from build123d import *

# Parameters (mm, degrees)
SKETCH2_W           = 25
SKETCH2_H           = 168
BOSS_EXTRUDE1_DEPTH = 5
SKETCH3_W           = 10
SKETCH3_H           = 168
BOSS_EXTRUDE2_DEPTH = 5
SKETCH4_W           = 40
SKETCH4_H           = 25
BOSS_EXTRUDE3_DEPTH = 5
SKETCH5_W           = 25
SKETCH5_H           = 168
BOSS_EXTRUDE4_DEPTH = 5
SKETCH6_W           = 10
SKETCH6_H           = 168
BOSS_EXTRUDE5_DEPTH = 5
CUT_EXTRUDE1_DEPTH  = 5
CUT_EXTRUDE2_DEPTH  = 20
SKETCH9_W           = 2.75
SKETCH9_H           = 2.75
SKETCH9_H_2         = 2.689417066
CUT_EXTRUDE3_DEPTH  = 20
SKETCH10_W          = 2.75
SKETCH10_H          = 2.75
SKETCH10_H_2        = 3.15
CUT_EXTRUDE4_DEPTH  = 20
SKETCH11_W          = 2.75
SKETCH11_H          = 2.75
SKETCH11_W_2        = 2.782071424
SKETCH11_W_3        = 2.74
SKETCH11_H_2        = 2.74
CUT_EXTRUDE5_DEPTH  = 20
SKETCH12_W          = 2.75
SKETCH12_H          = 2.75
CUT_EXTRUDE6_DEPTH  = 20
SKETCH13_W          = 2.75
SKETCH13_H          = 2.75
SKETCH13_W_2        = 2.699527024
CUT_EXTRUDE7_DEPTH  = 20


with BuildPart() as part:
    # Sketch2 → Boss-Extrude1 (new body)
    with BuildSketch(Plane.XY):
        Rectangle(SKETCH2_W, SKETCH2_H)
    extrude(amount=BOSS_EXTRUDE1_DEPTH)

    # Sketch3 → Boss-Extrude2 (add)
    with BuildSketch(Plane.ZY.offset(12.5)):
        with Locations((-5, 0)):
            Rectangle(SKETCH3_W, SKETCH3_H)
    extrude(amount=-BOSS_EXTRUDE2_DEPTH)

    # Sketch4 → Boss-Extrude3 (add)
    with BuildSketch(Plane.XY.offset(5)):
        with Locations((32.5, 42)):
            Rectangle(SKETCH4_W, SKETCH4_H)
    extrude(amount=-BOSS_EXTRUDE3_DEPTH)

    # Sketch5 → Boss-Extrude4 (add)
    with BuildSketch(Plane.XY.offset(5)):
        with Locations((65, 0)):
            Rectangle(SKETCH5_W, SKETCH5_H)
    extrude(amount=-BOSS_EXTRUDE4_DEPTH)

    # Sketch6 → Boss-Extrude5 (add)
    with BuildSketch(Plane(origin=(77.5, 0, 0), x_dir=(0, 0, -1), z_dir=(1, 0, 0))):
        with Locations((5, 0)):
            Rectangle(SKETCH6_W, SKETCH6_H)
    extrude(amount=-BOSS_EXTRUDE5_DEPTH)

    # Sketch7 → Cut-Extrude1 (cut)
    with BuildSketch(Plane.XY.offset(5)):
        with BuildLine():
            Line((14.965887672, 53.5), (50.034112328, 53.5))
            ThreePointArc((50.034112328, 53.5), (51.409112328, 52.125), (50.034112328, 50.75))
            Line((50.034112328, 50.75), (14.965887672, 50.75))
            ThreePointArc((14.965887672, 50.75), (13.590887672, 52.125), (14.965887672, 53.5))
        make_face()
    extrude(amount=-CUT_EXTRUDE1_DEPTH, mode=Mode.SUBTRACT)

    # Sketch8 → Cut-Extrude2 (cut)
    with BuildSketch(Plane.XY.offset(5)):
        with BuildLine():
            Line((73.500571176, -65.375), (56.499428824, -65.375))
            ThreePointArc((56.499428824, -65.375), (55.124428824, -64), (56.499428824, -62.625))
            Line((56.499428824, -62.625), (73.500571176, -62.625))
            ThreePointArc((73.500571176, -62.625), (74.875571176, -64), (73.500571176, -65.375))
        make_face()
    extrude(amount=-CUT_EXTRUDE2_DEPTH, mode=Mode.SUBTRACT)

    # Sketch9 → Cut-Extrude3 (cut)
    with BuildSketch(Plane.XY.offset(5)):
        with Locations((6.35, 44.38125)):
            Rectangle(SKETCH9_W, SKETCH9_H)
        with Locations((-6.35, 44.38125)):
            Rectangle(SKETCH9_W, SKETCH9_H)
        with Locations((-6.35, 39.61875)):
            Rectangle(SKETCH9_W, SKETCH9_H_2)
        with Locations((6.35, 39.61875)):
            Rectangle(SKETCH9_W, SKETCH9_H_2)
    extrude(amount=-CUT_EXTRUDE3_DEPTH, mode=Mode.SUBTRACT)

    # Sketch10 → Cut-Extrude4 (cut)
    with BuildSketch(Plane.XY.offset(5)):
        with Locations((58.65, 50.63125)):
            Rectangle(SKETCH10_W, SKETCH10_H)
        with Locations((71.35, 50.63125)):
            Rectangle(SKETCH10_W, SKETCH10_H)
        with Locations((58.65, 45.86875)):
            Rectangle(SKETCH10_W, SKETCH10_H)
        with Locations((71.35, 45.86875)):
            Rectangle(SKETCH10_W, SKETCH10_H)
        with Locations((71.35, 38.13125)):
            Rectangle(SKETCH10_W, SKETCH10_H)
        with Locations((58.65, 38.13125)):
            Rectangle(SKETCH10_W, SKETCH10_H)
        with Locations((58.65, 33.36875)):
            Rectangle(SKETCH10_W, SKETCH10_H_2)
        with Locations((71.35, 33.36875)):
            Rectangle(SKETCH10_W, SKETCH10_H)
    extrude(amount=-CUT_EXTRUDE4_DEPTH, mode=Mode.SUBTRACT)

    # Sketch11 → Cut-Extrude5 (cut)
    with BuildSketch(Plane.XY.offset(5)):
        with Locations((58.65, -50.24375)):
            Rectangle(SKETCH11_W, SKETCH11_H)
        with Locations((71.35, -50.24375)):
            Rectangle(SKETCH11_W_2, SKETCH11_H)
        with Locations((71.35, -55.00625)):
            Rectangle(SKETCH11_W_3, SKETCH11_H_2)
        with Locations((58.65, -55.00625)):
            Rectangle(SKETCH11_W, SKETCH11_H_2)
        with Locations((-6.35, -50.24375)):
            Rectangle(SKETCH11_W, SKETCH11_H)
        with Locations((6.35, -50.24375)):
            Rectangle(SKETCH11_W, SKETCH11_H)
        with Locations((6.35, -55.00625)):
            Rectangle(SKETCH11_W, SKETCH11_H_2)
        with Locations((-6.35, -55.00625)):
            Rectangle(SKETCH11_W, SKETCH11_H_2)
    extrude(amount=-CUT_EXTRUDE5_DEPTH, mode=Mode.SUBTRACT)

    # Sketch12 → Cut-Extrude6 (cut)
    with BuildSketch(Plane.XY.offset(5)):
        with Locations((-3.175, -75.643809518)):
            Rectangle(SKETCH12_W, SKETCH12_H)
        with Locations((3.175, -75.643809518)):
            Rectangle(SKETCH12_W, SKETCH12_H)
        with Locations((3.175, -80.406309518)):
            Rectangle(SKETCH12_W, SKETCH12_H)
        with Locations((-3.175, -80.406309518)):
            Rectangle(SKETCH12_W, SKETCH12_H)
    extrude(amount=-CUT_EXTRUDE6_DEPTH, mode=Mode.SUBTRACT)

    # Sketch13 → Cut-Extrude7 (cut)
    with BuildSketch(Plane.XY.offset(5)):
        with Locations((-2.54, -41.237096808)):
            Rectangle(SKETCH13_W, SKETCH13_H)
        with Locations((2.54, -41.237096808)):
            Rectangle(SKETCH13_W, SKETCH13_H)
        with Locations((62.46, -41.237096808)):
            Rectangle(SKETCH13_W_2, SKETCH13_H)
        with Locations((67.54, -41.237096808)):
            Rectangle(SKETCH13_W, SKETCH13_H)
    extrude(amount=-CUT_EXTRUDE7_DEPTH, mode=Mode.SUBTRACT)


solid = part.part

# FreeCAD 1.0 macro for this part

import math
import FreeCAD as App
import Part
import Sketcher
Q = App.Units.Quantity

doc = App.newDocument("Part")
body = doc.addObject("PartDesign::Body", "Body")

sketch1 = body.newObject("Sketcher::SketchObject", "Sketch")
sketch1.AttachmentSupport = (doc.getObject("XY_Plane"), [""])
sketch1.MapMode = "FlatFace"
sketch1.addGeometry(Part.LineSegment(App.Vector(-12.5, 84, 0), App.Vector(-12.5, -84, 0)), False)
sketch1.addGeometry(Part.LineSegment(App.Vector(-12.5, -84, 0), App.Vector(12.5, -84, 0)), False)
sketch1.addGeometry(Part.LineSegment(App.Vector(12.5, -84, 0), App.Vector(12.5, 84, 0)), False)
sketch1.addGeometry(Part.LineSegment(App.Vector(12.5, 84, 0), App.Vector(-12.5, 84, 0)), False)
sketch1.addConstraint(Sketcher.Constraint("Coincident", 0, 2, 1, 1))
sketch1.addConstraint(Sketcher.Constraint("Coincident", 1, 2, 2, 1))
sketch1.addConstraint(Sketcher.Constraint("Coincident", 2, 2, 3, 1))
sketch1.addConstraint(Sketcher.Constraint("Coincident", 3, 2, 0, 1))
sketch1.addConstraint(Sketcher.Constraint("Vertical", 0))
sketch1.addConstraint(Sketcher.Constraint("Horizontal", 1))
sketch1.addConstraint(Sketcher.Constraint("Vertical", 2))
sketch1.addConstraint(Sketcher.Constraint("Horizontal", 3))
sketch1.addConstraint(Sketcher.Constraint("Symmetric", 0, 2, 2, 2, -1, 1))
sketch1.addConstraint(Sketcher.Constraint("DistanceX", 1, 1, 1, 2, Q("25 mm")))
sketch1.addConstraint(Sketcher.Constraint("DistanceY", 0, 2, 0, 1, Q("168 mm")))
pad1 = body.newObject("PartDesign::Pad", "Pad")
pad1.Profile = sketch1
pad1.Length = 5

sketch2 = body.newObject("Sketcher::SketchObject", "Sketch001")
sketch2.AttachmentSupport = (doc.getObject("YZ_Plane"), [""])
sketch2.MapMode = "FlatFace"
sketch2.AttachmentOffset = App.Placement(App.Vector(0, 0, -12.5), App.Rotation())
sketch2.addGeometry(Part.LineSegment(App.Vector(84, -10, 0), App.Vector(-84, -10, 0)), False)
sketch2.addGeometry(Part.LineSegment(App.Vector(-84, -10, 0), App.Vector(-84, 0, 0)), False)
sketch2.addGeometry(Part.LineSegment(App.Vector(-84, 0, 0), App.Vector(84, 0, 0)), False)
sketch2.addGeometry(Part.LineSegment(App.Vector(84, 0, 0), App.Vector(84, -10, 0)), False)
sketch2.addConstraint(Sketcher.Constraint("Coincident", 0, 2, 1, 1))
sketch2.addConstraint(Sketcher.Constraint("Coincident", 1, 2, 2, 1))
sketch2.addConstraint(Sketcher.Constraint("Coincident", 2, 2, 3, 1))
sketch2.addConstraint(Sketcher.Constraint("Coincident", 3, 2, 0, 1))
sketch2.addConstraint(Sketcher.Constraint("Horizontal", 0))
sketch2.addConstraint(Sketcher.Constraint("Vertical", 1))
sketch2.addConstraint(Sketcher.Constraint("Horizontal", 2))
sketch2.addConstraint(Sketcher.Constraint("Vertical", 3))
sketch2.addConstraint(Sketcher.Constraint("Symmetric", 1, 2, 2, 2, -1, 1))
sketch2.addConstraint(Sketcher.Constraint("DistanceX", 0, 2, 0, 1, Q("168 mm")))
sketch2.addConstraint(Sketcher.Constraint("DistanceY", 1, 1, 1, 2, Q("10 mm")))
pad2 = body.newObject("PartDesign::Pad", "Pad001")
pad2.Profile = sketch2
pad2.Length = 5

sketch3 = body.newObject("Sketcher::SketchObject", "Sketch002")
sketch3.AttachmentSupport = (doc.getObject("XY_Plane"), [""])
sketch3.MapMode = "FlatFace"
sketch3.AttachmentOffset = App.Placement(App.Vector(0, 0, 5), App.Rotation())
sketch3.addGeometry(Part.LineSegment(App.Vector(12.5, 54.5, 0), App.Vector(12.5, 29.5, 0)), False)
sketch3.addGeometry(Part.LineSegment(App.Vector(12.5, 29.5, 0), App.Vector(52.5, 29.5, 0)), False)
sketch3.addGeometry(Part.LineSegment(App.Vector(52.5, 29.5, 0), App.Vector(52.5, 54.5, 0)), False)
sketch3.addGeometry(Part.LineSegment(App.Vector(52.5, 54.5, 0), App.Vector(12.5, 54.5, 0)), False)
sketch3.addConstraint(Sketcher.Constraint("Coincident", 0, 2, 1, 1))
sketch3.addConstraint(Sketcher.Constraint("Coincident", 1, 2, 2, 1))
sketch3.addConstraint(Sketcher.Constraint("Coincident", 2, 2, 3, 1))
sketch3.addConstraint(Sketcher.Constraint("Coincident", 3, 2, 0, 1))
sketch3.addConstraint(Sketcher.Constraint("Vertical", 0))
sketch3.addConstraint(Sketcher.Constraint("Horizontal", 1))
sketch3.addConstraint(Sketcher.Constraint("Vertical", 2))
sketch3.addConstraint(Sketcher.Constraint("Horizontal", 3))
sketch3.addConstraint(Sketcher.Constraint("DistanceX", 1, 1, 1, 2, Q("40 mm")))
sketch3.addConstraint(Sketcher.Constraint("DistanceY", 0, 2, 0, 1, Q("25 mm")))
sketch3.addConstraint(Sketcher.Constraint("DistanceX", -1, 1, 0, 2, Q("12.5 mm")))
sketch3.addConstraint(Sketcher.Constraint("DistanceY", -1, 1, 0, 2, Q("29.5 mm")))
pad3 = body.newObject("PartDesign::Pad", "Pad002")
pad3.Profile = sketch3
pad3.Length = 5
pad3.Reversed = True

sketch4 = body.newObject("Sketcher::SketchObject", "Sketch003")
sketch4.AttachmentSupport = (doc.getObject("XY_Plane"), [""])
sketch4.MapMode = "FlatFace"
sketch4.AttachmentOffset = App.Placement(App.Vector(0, 0, 5), App.Rotation())
sketch4.addGeometry(Part.LineSegment(App.Vector(52.5, 84, 0), App.Vector(52.5, -84, 0)), False)
sketch4.addGeometry(Part.LineSegment(App.Vector(52.5, -84, 0), App.Vector(77.5, -84, 0)), False)
sketch4.addGeometry(Part.LineSegment(App.Vector(77.5, -84, 0), App.Vector(77.5, 84, 0)), False)
sketch4.addGeometry(Part.LineSegment(App.Vector(77.5, 84, 0), App.Vector(52.5, 84, 0)), False)
sketch4.addConstraint(Sketcher.Constraint("Coincident", 0, 2, 1, 1))
sketch4.addConstraint(Sketcher.Constraint("Coincident", 1, 2, 2, 1))
sketch4.addConstraint(Sketcher.Constraint("Coincident", 2, 2, 3, 1))
sketch4.addConstraint(Sketcher.Constraint("Coincident", 3, 2, 0, 1))
sketch4.addConstraint(Sketcher.Constraint("Vertical", 0))
sketch4.addConstraint(Sketcher.Constraint("Horizontal", 1))
sketch4.addConstraint(Sketcher.Constraint("Vertical", 2))
sketch4.addConstraint(Sketcher.Constraint("Horizontal", 3))
sketch4.addConstraint(Sketcher.Constraint("DistanceX", 1, 1, 1, 2, Q("25 mm")))
sketch4.addConstraint(Sketcher.Constraint("DistanceY", 0, 2, 0, 1, Q("168 mm")))
sketch4.addConstraint(Sketcher.Constraint("DistanceY", 0, 2, -1, 1, Q("84 mm")))
sketch4.addConstraint(Sketcher.Constraint("DistanceX", -1, 1, 0, 2, Q("52.5 mm")))
pad4 = body.newObject("PartDesign::Pad", "Pad003")
pad4.Profile = sketch4
pad4.Length = 5
pad4.Reversed = True

sketch5 = body.newObject("Sketcher::SketchObject", "Sketch004")
sketch5.AttachmentSupport = (doc.getObject("YZ_Plane"), [""])
sketch5.MapMode = "FlatFace"
sketch5.AttachmentOffset = App.Placement(App.Vector(0, 0, 77.5), App.Rotation())
sketch5.addGeometry(Part.LineSegment(App.Vector(84, 0, 0), App.Vector(-84, 0, 0)), False)
sketch5.addGeometry(Part.LineSegment(App.Vector(-84, 0, 0), App.Vector(-84, -10, 0)), False)
sketch5.addGeometry(Part.LineSegment(App.Vector(-84, -10, 0), App.Vector(84, -10, 0)), False)
sketch5.addGeometry(Part.LineSegment(App.Vector(84, -10, 0), App.Vector(84, 0, 0)), False)
sketch5.addConstraint(Sketcher.Constraint("Coincident", 0, 2, 1, 1))
sketch5.addConstraint(Sketcher.Constraint("Coincident", 1, 2, 2, 1))
sketch5.addConstraint(Sketcher.Constraint("Coincident", 2, 2, 3, 1))
sketch5.addConstraint(Sketcher.Constraint("Coincident", 3, 2, 0, 1))
sketch5.addConstraint(Sketcher.Constraint("Horizontal", 0))
sketch5.addConstraint(Sketcher.Constraint("Vertical", 1))
sketch5.addConstraint(Sketcher.Constraint("Horizontal", 2))
sketch5.addConstraint(Sketcher.Constraint("Vertical", 3))
sketch5.addConstraint(Sketcher.Constraint("Symmetric", 0, 2, 3, 2, -1, 1))
sketch5.addConstraint(Sketcher.Constraint("DistanceX", 0, 2, 0, 1, Q("168 mm")))
sketch5.addConstraint(Sketcher.Constraint("DistanceY", 1, 2, 1, 1, Q("10 mm")))
pad5 = body.newObject("PartDesign::Pad", "Pad004")
pad5.Profile = sketch5
pad5.Length = 5
pad5.Reversed = True

sketch6 = body.newObject("Sketcher::SketchObject", "Sketch005")
sketch6.AttachmentSupport = (doc.getObject("XY_Plane"), [""])
sketch6.MapMode = "FlatFace"
sketch6.AttachmentOffset = App.Placement(App.Vector(0, 0, 5), App.Rotation())
sketch6.addGeometry(Part.LineSegment(App.Vector(50.034112, 53.5, 0), App.Vector(14.965888, 53.5, 0)), False)
sketch6.addGeometry(Part.ArcOfCircle(Part.Circle(App.Vector(14.965888, 52.125, 0), App.Vector(0, 0, 1), 1.375), math.radians(90), math.radians(270)), False)
sketch6.addGeometry(Part.LineSegment(App.Vector(14.965888, 50.75, 0), App.Vector(50.034112, 50.75, 0)), False)
sketch6.addGeometry(Part.ArcOfCircle(Part.Circle(App.Vector(50.034112, 52.125, 0), App.Vector(0, 0, 1), 1.375), math.radians(-90), math.radians(90)), False)
sketch6.addConstraint(Sketcher.Constraint("Tangent", 0, 2, 1, 1))
sketch6.addConstraint(Sketcher.Constraint("Tangent", 1, 2, 2, 1))
sketch6.addConstraint(Sketcher.Constraint("Tangent", 2, 2, 3, 1))
sketch6.addConstraint(Sketcher.Constraint("Tangent", 3, 2, 0, 1))
sketch6.addConstraint(Sketcher.Constraint("Horizontal", 0))
sketch6.addConstraint(Sketcher.Constraint("Horizontal", 2))
sketch6.addConstraint(Sketcher.Constraint("Radius", 1, Q("1.375 mm")))
sketch6.addConstraint(Sketcher.Constraint("DistanceY", -1, 1, 0, 2, Q("53.5 mm")))
sketch6.addConstraint(Sketcher.Constraint("DistanceX", 0, 2, 0, 1, Q("35.068225 mm")))
sketch6.addConstraint(Sketcher.Constraint("DistanceX", -1, 1, 1, 3, Q("14.965888 mm")))
pocket1 = body.newObject("PartDesign::Pocket", "Pocket")
pocket1.Profile = sketch6
pocket1.Length = 5

sketch7 = body.newObject("Sketcher::SketchObject", "Sketch006")
sketch7.AttachmentSupport = (doc.getObject("XY_Plane"), [""])
sketch7.MapMode = "FlatFace"
sketch7.AttachmentOffset = App.Placement(App.Vector(0, 0, 5), App.Rotation())
sketch7.addGeometry(Part.LineSegment(App.Vector(56.499429, -65.375, 0), App.Vector(73.500571, -65.375, 0)), False)
sketch7.addGeometry(Part.ArcOfCircle(Part.Circle(App.Vector(73.500571, -64, 0), App.Vector(0, 0, 1), 1.375), math.radians(-90), math.radians(90)), False)
sketch7.addGeometry(Part.LineSegment(App.Vector(73.500571, -62.625, 0), App.Vector(56.499429, -62.625, 0)), False)
sketch7.addGeometry(Part.ArcOfCircle(Part.Circle(App.Vector(56.499429, -64, 0), App.Vector(0, 0, 1), 1.375), math.radians(90), math.radians(270)), False)
sketch7.addConstraint(Sketcher.Constraint("Tangent", 0, 2, 1, 1))
sketch7.addConstraint(Sketcher.Constraint("Tangent", 1, 2, 2, 1))
sketch7.addConstraint(Sketcher.Constraint("Tangent", 2, 2, 3, 1))
sketch7.addConstraint(Sketcher.Constraint("Tangent", 3, 2, 0, 1))
sketch7.addConstraint(Sketcher.Constraint("Horizontal", 0))
sketch7.addConstraint(Sketcher.Constraint("Horizontal", 2))
sketch7.addConstraint(Sketcher.Constraint("DistanceY", 1, 3, -1, 1, Q("64 mm")))
sketch7.addConstraint(Sketcher.Constraint("Radius", 1, Q("1.375 mm")))
sketch7.addConstraint(Sketcher.Constraint("DistanceX", 0, 1, 0, 2, Q("17.001142 mm")))
sketch7.addConstraint(Sketcher.Constraint("DistanceX", -1, 1, 1, 3, Q("73.500571 mm")))
pocket2 = body.newObject("PartDesign::Pocket", "Pocket001")
pocket2.Profile = sketch7
pocket2.Length = 20

sketch8 = body.newObject("Sketcher::SketchObject", "Sketch007")
sketch8.AttachmentSupport = (doc.getObject("XY_Plane"), [""])
sketch8.MapMode = "FlatFace"
sketch8.AttachmentOffset = App.Placement(App.Vector(0, 0, 5), App.Rotation())
sketch8.addGeometry(Part.LineSegment(App.Vector(4.975, 45.75625, 0), App.Vector(4.975, 43.00625, 0)), False)
sketch8.addGeometry(Part.LineSegment(App.Vector(4.975, 43.00625, 0), App.Vector(7.725, 43.00625, 0)), False)
sketch8.addGeometry(Part.LineSegment(App.Vector(7.725, 43.00625, 0), App.Vector(7.725, 45.75625, 0)), False)
sketch8.addGeometry(Part.LineSegment(App.Vector(7.725, 45.75625, 0), App.Vector(4.975, 45.75625, 0)), False)
sketch8.addGeometry(Part.LineSegment(App.Vector(-7.725, 45.75625, 0), App.Vector(-7.725, 43.00625, 0)), False)
sketch8.addGeometry(Part.LineSegment(App.Vector(-7.725, 43.00625, 0), App.Vector(-4.975, 43.00625, 0)), False)
sketch8.addGeometry(Part.LineSegment(App.Vector(-4.975, 43.00625, 0), App.Vector(-4.975, 45.75625, 0)), False)
sketch8.addGeometry(Part.LineSegment(App.Vector(-4.975, 45.75625, 0), App.Vector(-7.725, 45.75625, 0)), False)
sketch8.addGeometry(Part.LineSegment(App.Vector(-7.725, 40.963459, 0), App.Vector(-7.725, 38.274041, 0)), False)
sketch8.addGeometry(Part.LineSegment(App.Vector(-7.725, 38.274041, 0), App.Vector(-4.975, 38.274041, 0)), False)
sketch8.addGeometry(Part.LineSegment(App.Vector(-4.975, 38.274041, 0), App.Vector(-4.975, 40.963459, 0)), False)
sketch8.addGeometry(Part.LineSegment(App.Vector(-4.975, 40.963459, 0), App.Vector(-7.725, 40.963459, 0)), False)
sketch8.addGeometry(Part.LineSegment(App.Vector(4.975, 40.963459, 0), App.Vector(4.975, 38.274041, 0)), False)
sketch8.addGeometry(Part.LineSegment(App.Vector(4.975, 38.274041, 0), App.Vector(7.725, 38.274041, 0)), False)
sketch8.addGeometry(Part.LineSegment(App.Vector(7.725, 38.274041, 0), App.Vector(7.725, 40.963459, 0)), False)
sketch8.addGeometry(Part.LineSegment(App.Vector(7.725, 40.963459, 0), App.Vector(4.975, 40.963459, 0)), False)
sketch8.addConstraint(Sketcher.Constraint("Coincident", 0, 2, 1, 1))
sketch8.addConstraint(Sketcher.Constraint("Coincident", 1, 2, 2, 1))
sketch8.addConstraint(Sketcher.Constraint("Coincident", 2, 2, 3, 1))
sketch8.addConstraint(Sketcher.Constraint("Coincident", 3, 2, 0, 1))
sketch8.addConstraint(Sketcher.Constraint("Coincident", 4, 2, 5, 1))
sketch8.addConstraint(Sketcher.Constraint("Coincident", 5, 2, 6, 1))
sketch8.addConstraint(Sketcher.Constraint("Coincident", 6, 2, 7, 1))
sketch8.addConstraint(Sketcher.Constraint("Coincident", 7, 2, 4, 1))
sketch8.addConstraint(Sketcher.Constraint("Coincident", 8, 2, 9, 1))
sketch8.addConstraint(Sketcher.Constraint("Coincident", 9, 2, 10, 1))
sketch8.addConstraint(Sketcher.Constraint("Coincident", 10, 2, 11, 1))
sketch8.addConstraint(Sketcher.Constraint("Coincident", 11, 2, 8, 1))
sketch8.addConstraint(Sketcher.Constraint("Coincident", 12, 2, 13, 1))
sketch8.addConstraint(Sketcher.Constraint("Coincident", 13, 2, 14, 1))
sketch8.addConstraint(Sketcher.Constraint("Coincident", 14, 2, 15, 1))
sketch8.addConstraint(Sketcher.Constraint("Coincident", 15, 2, 12, 1))
sketch8.addConstraint(Sketcher.Constraint("Vertical", 0))
sketch8.addConstraint(Sketcher.Constraint("Horizontal", 1))
sketch8.addConstraint(Sketcher.Constraint("Vertical", 2))
sketch8.addConstraint(Sketcher.Constraint("Horizontal", 3))
sketch8.addConstraint(Sketcher.Constraint("Vertical", 4))
sketch8.addConstraint(Sketcher.Constraint("Horizontal", 5))
sketch8.addConstraint(Sketcher.Constraint("Vertical", 6))
sketch8.addConstraint(Sketcher.Constraint("Horizontal", 7))
sketch8.addConstraint(Sketcher.Constraint("Vertical", 8))
sketch8.addConstraint(Sketcher.Constraint("Horizontal", 9))
sketch8.addConstraint(Sketcher.Constraint("Vertical", 10))
sketch8.addConstraint(Sketcher.Constraint("Horizontal", 11))
sketch8.addConstraint(Sketcher.Constraint("Vertical", 12))
sketch8.addConstraint(Sketcher.Constraint("Horizontal", 13))
sketch8.addConstraint(Sketcher.Constraint("Vertical", 14))
sketch8.addConstraint(Sketcher.Constraint("Horizontal", 15))
sketch8.addConstraint(Sketcher.Constraint("Symmetric", 1, 2, 4, 2, -2))
sketch8.addConstraint(Sketcher.Constraint("Symmetric", 3, 2, 6, 2, -2))
sketch8.addConstraint(Sketcher.Constraint("Symmetric", 9, 2, 12, 2, -2))
sketch8.addConstraint(Sketcher.Constraint("Symmetric", 11, 2, 14, 2, -2))
sketch8.addConstraint(Sketcher.Constraint("Vertical", 7, 2, 8, 2))
sketch8.addConstraint(Sketcher.Constraint("Vertical", 6, 2, 9, 2))
sketch8.addConstraint(Sketcher.Constraint("Equal", 15, 0))
sketch8.addConstraint(Sketcher.Constraint("DistanceX", 1, 1, 1, 2, Q("2.75 mm")))
sketch8.addConstraint(Sketcher.Constraint("DistanceX", 4, 2, 0, 2, Q("12.7 mm")))
sketch8.addConstraint(Sketcher.Constraint("DistanceY", 8, 2, 8, 1, Q("2.689417 mm")))
sketch8.addConstraint(Sketcher.Constraint("DistanceY", -1, 1, 0, 2, Q("43.00625 mm")))
sketch8.addConstraint(Sketcher.Constraint("DistanceY", -1, 1, 8, 2, Q("38.274041 mm")))
pocket3 = body.newObject("PartDesign::Pocket", "Pocket002")
pocket3.Profile = sketch8
pocket3.Length = 20

sketch9 = body.newObject("Sketcher::SketchObject", "Sketch008")
sketch9.AttachmentSupport = (doc.getObject("XY_Plane"), [""])
sketch9.MapMode = "FlatFace"
sketch9.AttachmentOffset = App.Placement(App.Vector(0, 0, 5), App.Rotation())
sketch9.addGeometry(Part.LineSegment(App.Vector(57.275, 52.00625, 0), App.Vector(57.275, 49.25625, 0)), False)
sketch9.addGeometry(Part.LineSegment(App.Vector(57.275, 49.25625, 0), App.Vector(60.025, 49.25625, 0)), False)
sketch9.addGeometry(Part.LineSegment(App.Vector(60.025, 49.25625, 0), App.Vector(60.025, 52.00625, 0)), False)
sketch9.addGeometry(Part.LineSegment(App.Vector(60.025, 52.00625, 0), App.Vector(57.275, 52.00625, 0)), False)
sketch9.addGeometry(Part.LineSegment(App.Vector(69.975, 52.00625, 0), App.Vector(69.975, 49.25625, 0)), False)
sketch9.addGeometry(Part.LineSegment(App.Vector(69.975, 49.25625, 0), App.Vector(72.725, 49.25625, 0)), False)
sketch9.addGeometry(Part.LineSegment(App.Vector(72.725, 49.25625, 0), App.Vector(72.725, 52.00625, 0)), False)
sketch9.addGeometry(Part.LineSegment(App.Vector(72.725, 52.00625, 0), App.Vector(69.975, 52.00625, 0)), False)
sketch9.addGeometry(Part.LineSegment(App.Vector(57.275, 47.24375, 0), App.Vector(57.275, 44.49375, 0)), False)
sketch9.addGeometry(Part.LineSegment(App.Vector(57.275, 44.49375, 0), App.Vector(60.025, 44.49375, 0)), False)
sketch9.addGeometry(Part.LineSegment(App.Vector(60.025, 44.49375, 0), App.Vector(60.025, 47.24375, 0)), False)
sketch9.addGeometry(Part.LineSegment(App.Vector(60.025, 47.24375, 0), App.Vector(57.275, 47.24375, 0)), False)
sketch9.addGeometry(Part.LineSegment(App.Vector(69.975, 47.24375, 0), App.Vector(69.975, 44.49375, 0)), False)
sketch9.addGeometry(Part.LineSegment(App.Vector(69.975, 44.49375, 0), App.Vector(72.725, 44.49375, 0)), False)
sketch9.addGeometry(Part.LineSegment(App.Vector(72.725, 44.49375, 0), App.Vector(72.725, 47.24375, 0)), False)
sketch9.addGeometry(Part.LineSegment(App.Vector(72.725, 47.24375, 0), App.Vector(69.975, 47.24375, 0)), False)
sketch9.addGeometry(Part.LineSegment(App.Vector(69.975, 39.50625, 0), App.Vector(69.975, 36.75625, 0)), False)
sketch9.addGeometry(Part.LineSegment(App.Vector(69.975, 36.75625, 0), App.Vector(72.725, 36.75625, 0)), False)
sketch9.addGeometry(Part.LineSegment(App.Vector(72.725, 36.75625, 0), App.Vector(72.725, 39.50625, 0)), False)
sketch9.addGeometry(Part.LineSegment(App.Vector(72.725, 39.50625, 0), App.Vector(69.975, 39.50625, 0)), False)
sketch9.addGeometry(Part.LineSegment(App.Vector(57.275, 39.50625, 0), App.Vector(57.275, 36.75625, 0)), False)
sketch9.addGeometry(Part.LineSegment(App.Vector(57.275, 36.75625, 0), App.Vector(60.025, 36.75625, 0)), False)
sketch9.addGeometry(Part.LineSegment(App.Vector(60.025, 36.75625, 0), App.Vector(60.025, 39.50625, 0)), False)
sketch9.addGeometry(Part.LineSegment(App.Vector(60.025, 39.50625, 0), App.Vector(57.275, 39.50625, 0)), False)
sketch9.addGeometry(Part.LineSegment(App.Vector(57.275, 34.94375, 0), App.Vector(57.275, 31.79375, 0)), False)
sketch9.addGeometry(Part.LineSegment(App.Vector(57.275, 31.79375, 0), App.Vector(60.025, 31.79375, 0)), False)
sketch9.addGeometry(Part.LineSegment(App.Vector(60.025, 31.79375, 0), App.Vector(60.025, 34.94375, 0)), False)
sketch9.addGeometry(Part.LineSegment(App.Vector(60.025, 34.94375, 0), App.Vector(57.275, 34.94375, 0)), False)
sketch9.addGeometry(Part.LineSegment(App.Vector(69.975, 34.74375, 0), App.Vector(69.975, 31.99375, 0)), False)
sketch9.addGeometry(Part.LineSegment(App.Vector(69.975, 31.99375, 0), App.Vector(72.725, 31.99375, 0)), False)
sketch9.addGeometry(Part.LineSegment(App.Vector(72.725, 31.99375, 0), App.Vector(72.725, 34.74375, 0)), False)
sketch9.addGeometry(Part.LineSegment(App.Vector(72.725, 34.74375, 0), App.Vector(69.975, 34.74375, 0)), False)
sketch9.addConstraint(Sketcher.Constraint("Coincident", 0, 2, 1, 1))
sketch9.addConstraint(Sketcher.Constraint("Coincident", 1, 2, 2, 1))
sketch9.addConstraint(Sketcher.Constraint("Coincident", 2, 2, 3, 1))
sketch9.addConstraint(Sketcher.Constraint("Coincident", 3, 2, 0, 1))
sketch9.addConstraint(Sketcher.Constraint("Coincident", 4, 2, 5, 1))
sketch9.addConstraint(Sketcher.Constraint("Coincident", 5, 2, 6, 1))
sketch9.addConstraint(Sketcher.Constraint("Coincident", 6, 2, 7, 1))
sketch9.addConstraint(Sketcher.Constraint("Coincident", 7, 2, 4, 1))
sketch9.addConstraint(Sketcher.Constraint("Coincident", 8, 2, 9, 1))
sketch9.addConstraint(Sketcher.Constraint("Coincident", 9, 2, 10, 1))
sketch9.addConstraint(Sketcher.Constraint("Coincident", 10, 2, 11, 1))
sketch9.addConstraint(Sketcher.Constraint("Coincident", 11, 2, 8, 1))
sketch9.addConstraint(Sketcher.Constraint("Coincident", 12, 2, 13, 1))
sketch9.addConstraint(Sketcher.Constraint("Coincident", 13, 2, 14, 1))
sketch9.addConstraint(Sketcher.Constraint("Coincident", 14, 2, 15, 1))
sketch9.addConstraint(Sketcher.Constraint("Coincident", 15, 2, 12, 1))
sketch9.addConstraint(Sketcher.Constraint("Coincident", 16, 2, 17, 1))
sketch9.addConstraint(Sketcher.Constraint("Coincident", 17, 2, 18, 1))
sketch9.addConstraint(Sketcher.Constraint("Coincident", 18, 2, 19, 1))
sketch9.addConstraint(Sketcher.Constraint("Coincident", 19, 2, 16, 1))
sketch9.addConstraint(Sketcher.Constraint("Coincident", 20, 2, 21, 1))
sketch9.addConstraint(Sketcher.Constraint("Coincident", 21, 2, 22, 1))
sketch9.addConstraint(Sketcher.Constraint("Coincident", 22, 2, 23, 1))
sketch9.addConstraint(Sketcher.Constraint("Coincident", 23, 2, 20, 1))
sketch9.addConstraint(Sketcher.Constraint("Coincident", 24, 2, 25, 1))
sketch9.addConstraint(Sketcher.Constraint("Coincident", 25, 2, 26, 1))
sketch9.addConstraint(Sketcher.Constraint("Coincident", 26, 2, 27, 1))
sketch9.addConstraint(Sketcher.Constraint("Coincident", 27, 2, 24, 1))
sketch9.addConstraint(Sketcher.Constraint("Coincident", 28, 2, 29, 1))
sketch9.addConstraint(Sketcher.Constraint("Coincident", 29, 2, 30, 1))
sketch9.addConstraint(Sketcher.Constraint("Coincident", 30, 2, 31, 1))
sketch9.addConstraint(Sketcher.Constraint("Coincident", 31, 2, 28, 1))
sketch9.addConstraint(Sketcher.Constraint("Vertical", 0))
sketch9.addConstraint(Sketcher.Constraint("Horizontal", 1))
sketch9.addConstraint(Sketcher.Constraint("Vertical", 2))
sketch9.addConstraint(Sketcher.Constraint("Horizontal", 3))
sketch9.addConstraint(Sketcher.Constraint("Vertical", 4))
sketch9.addConstraint(Sketcher.Constraint("Horizontal", 5))
sketch9.addConstraint(Sketcher.Constraint("Vertical", 6))
sketch9.addConstraint(Sketcher.Constraint("Horizontal", 7))
sketch9.addConstraint(Sketcher.Constraint("Vertical", 8))
sketch9.addConstraint(Sketcher.Constraint("Horizontal", 9))
sketch9.addConstraint(Sketcher.Constraint("Vertical", 10))
sketch9.addConstraint(Sketcher.Constraint("Horizontal", 11))
sketch9.addConstraint(Sketcher.Constraint("Vertical", 12))
sketch9.addConstraint(Sketcher.Constraint("Horizontal", 13))
sketch9.addConstraint(Sketcher.Constraint("Vertical", 14))
sketch9.addConstraint(Sketcher.Constraint("Horizontal", 15))
sketch9.addConstraint(Sketcher.Constraint("Vertical", 16))
sketch9.addConstraint(Sketcher.Constraint("Horizontal", 17))
sketch9.addConstraint(Sketcher.Constraint("Vertical", 18))
sketch9.addConstraint(Sketcher.Constraint("Horizontal", 19))
sketch9.addConstraint(Sketcher.Constraint("Vertical", 20))
sketch9.addConstraint(Sketcher.Constraint("Horizontal", 21))
sketch9.addConstraint(Sketcher.Constraint("Vertical", 22))
sketch9.addConstraint(Sketcher.Constraint("Horizontal", 23))
sketch9.addConstraint(Sketcher.Constraint("Vertical", 24))
sketch9.addConstraint(Sketcher.Constraint("Horizontal", 25))
sketch9.addConstraint(Sketcher.Constraint("Vertical", 26))
sketch9.addConstraint(Sketcher.Constraint("Horizontal", 27))
sketch9.addConstraint(Sketcher.Constraint("Vertical", 28))
sketch9.addConstraint(Sketcher.Constraint("Horizontal", 29))
sketch9.addConstraint(Sketcher.Constraint("Vertical", 30))
sketch9.addConstraint(Sketcher.Constraint("Horizontal", 31))
sketch9.addConstraint(Sketcher.Constraint("Horizontal", 1, 2, 4, 2))
sketch9.addConstraint(Sketcher.Constraint("Horizontal", 3, 2, 6, 2))
sketch9.addConstraint(Sketcher.Constraint("Horizontal", 9, 2, 12, 2))
sketch9.addConstraint(Sketcher.Constraint("Horizontal", 11, 2, 14, 2))
sketch9.addConstraint(Sketcher.Constraint("Horizontal", 17, 2, 20, 2))
sketch9.addConstraint(Sketcher.Constraint("Horizontal", 19, 2, 22, 2))
sketch9.addConstraint(Sketcher.Constraint("Vertical", 3, 2, 8, 2))
sketch9.addConstraint(Sketcher.Constraint("Vertical", 2, 2, 9, 2))
sketch9.addConstraint(Sketcher.Constraint("Vertical", 7, 2, 12, 2))
sketch9.addConstraint(Sketcher.Constraint("Vertical", 6, 2, 13, 2))
sketch9.addConstraint(Sketcher.Constraint("Vertical", 15, 2, 16, 2))
sketch9.addConstraint(Sketcher.Constraint("Vertical", 14, 2, 17, 2))
sketch9.addConstraint(Sketcher.Constraint("Vertical", 11, 2, 20, 2))
sketch9.addConstraint(Sketcher.Constraint("Vertical", 10, 2, 21, 2))
sketch9.addConstraint(Sketcher.Constraint("Vertical", 23, 2, 24, 2))
sketch9.addConstraint(Sketcher.Constraint("Vertical", 22, 2, 25, 2))
sketch9.addConstraint(Sketcher.Constraint("Vertical", 19, 2, 28, 2))
sketch9.addConstraint(Sketcher.Constraint("Vertical", 18, 2, 29, 2))
sketch9.addConstraint(Sketcher.Constraint("Equal", 3, 5))
sketch9.addConstraint(Sketcher.Constraint("Equal", 31, 0))
sketch9.addConstraint(Sketcher.Constraint("Equal", 6, 8))
sketch9.addConstraint(Sketcher.Constraint("Equal", 14, 16))
sketch9.addConstraint(Sketcher.Constraint("Equal", 22, 28))
sketch9.addConstraint(Sketcher.Constraint("DistanceX", 1, 1, 1, 2, Q("2.75 mm")))
sketch9.addConstraint(Sketcher.Constraint("DistanceY", 24, 2, 24, 1, Q("3.15 mm")))
sketch9.addConstraint(Sketcher.Constraint("DistanceX", 0, 2, 4, 2, Q("12.7 mm")))
sketch9.addConstraint(Sketcher.Constraint("DistanceY", 16, 2, 4, 2, Q("12.5 mm")))
sketch9.addConstraint(Sketcher.Constraint("DistanceY", 24, 2, 8, 2, Q("12.7 mm")))
sketch9.addConstraint(Sketcher.Constraint("DistanceY", 25, 2, 28, 2, Q("0.2 mm")))
sketch9.addConstraint(Sketcher.Constraint("DistanceX", -1, 1, 0, 2, Q("57.275 mm")))
sketch9.addConstraint(Sketcher.Constraint("DistanceY", 8, 2, 0, 2, Q("4.7625 mm")))
sketch9.addConstraint(Sketcher.Constraint("DistanceY", -1, 1, 0, 2, Q("49.25625 mm")))
pocket4 = body.newObject("PartDesign::Pocket", "Pocket003")
pocket4.Profile = sketch9
pocket4.Length = 20

sketch10 = body.newObject("Sketcher::SketchObject", "Sketch009")
sketch10.AttachmentSupport = (doc.getObject("XY_Plane"), [""])
sketch10.MapMode = "FlatFace"
sketch10.AttachmentOffset = App.Placement(App.Vector(0, 0, 5), App.Rotation())
sketch10.addGeometry(Part.LineSegment(App.Vector(57.275, -48.86875, 0), App.Vector(57.275, -51.61875, 0)), False)
sketch10.addGeometry(Part.LineSegment(App.Vector(57.275, -51.61875, 0), App.Vector(60.025, -51.61875, 0)), False)
sketch10.addGeometry(Part.LineSegment(App.Vector(60.025, -51.61875, 0), App.Vector(60.025, -48.86875, 0)), False)
sketch10.addGeometry(Part.LineSegment(App.Vector(60.025, -48.86875, 0), App.Vector(57.275, -48.86875, 0)), False)
sketch10.addGeometry(Part.LineSegment(App.Vector(69.958964, -48.86875, 0), App.Vector(69.958964, -51.61875, 0)), False)
sketch10.addGeometry(Part.LineSegment(App.Vector(69.958964, -51.61875, 0), App.Vector(72.741036, -51.61875, 0)), False)
sketch10.addGeometry(Part.LineSegment(App.Vector(72.741036, -51.61875, 0), App.Vector(72.741036, -48.86875, 0)), False)
sketch10.addGeometry(Part.LineSegment(App.Vector(72.741036, -48.86875, 0), App.Vector(69.958964, -48.86875, 0)), False)
sketch10.addGeometry(Part.LineSegment(App.Vector(69.98, -53.63625, 0), App.Vector(69.98, -56.37625, 0)), False)
sketch10.addGeometry(Part.LineSegment(App.Vector(69.98, -56.37625, 0), App.Vector(72.72, -56.37625, 0)), False)
sketch10.addGeometry(Part.LineSegment(App.Vector(72.72, -56.37625, 0), App.Vector(72.72, -53.63625, 0)), False)
sketch10.addGeometry(Part.LineSegment(App.Vector(72.72, -53.63625, 0), App.Vector(69.98, -53.63625, 0)), False)
sketch10.addGeometry(Part.LineSegment(App.Vector(57.275, -53.63625, 0), App.Vector(57.275, -56.37625, 0)), False)
sketch10.addGeometry(Part.LineSegment(App.Vector(57.275, -56.37625, 0), App.Vector(60.025, -56.37625, 0)), False)
sketch10.addGeometry(Part.LineSegment(App.Vector(60.025, -56.37625, 0), App.Vector(60.025, -53.63625, 0)), False)
sketch10.addGeometry(Part.LineSegment(App.Vector(60.025, -53.63625, 0), App.Vector(57.275, -53.63625, 0)), False)
sketch10.addGeometry(Part.LineSegment(App.Vector(-7.725, -48.86875, 0), App.Vector(-7.725, -51.61875, 0)), False)
sketch10.addGeometry(Part.LineSegment(App.Vector(-7.725, -51.61875, 0), App.Vector(-4.975, -51.61875, 0)), False)
sketch10.addGeometry(Part.LineSegment(App.Vector(-4.975, -51.61875, 0), App.Vector(-4.975, -48.86875, 0)), False)
sketch10.addGeometry(Part.LineSegment(App.Vector(-4.975, -48.86875, 0), App.Vector(-7.725, -48.86875, 0)), False)
sketch10.addGeometry(Part.LineSegment(App.Vector(4.975, -48.86875, 0), App.Vector(4.975, -51.61875, 0)), False)
sketch10.addGeometry(Part.LineSegment(App.Vector(4.975, -51.61875, 0), App.Vector(7.725, -51.61875, 0)), False)
sketch10.addGeometry(Part.LineSegment(App.Vector(7.725, -51.61875, 0), App.Vector(7.725, -48.86875, 0)), False)
sketch10.addGeometry(Part.LineSegment(App.Vector(7.725, -48.86875, 0), App.Vector(4.975, -48.86875, 0)), False)
sketch10.addGeometry(Part.LineSegment(App.Vector(4.975, -53.63625, 0), App.Vector(4.975, -56.37625, 0)), False)
sketch10.addGeometry(Part.LineSegment(App.Vector(4.975, -56.37625, 0), App.Vector(7.725, -56.37625, 0)), False)
sketch10.addGeometry(Part.LineSegment(App.Vector(7.725, -56.37625, 0), App.Vector(7.725, -53.63625, 0)), False)
sketch10.addGeometry(Part.LineSegment(App.Vector(7.725, -53.63625, 0), App.Vector(4.975, -53.63625, 0)), False)
sketch10.addGeometry(Part.LineSegment(App.Vector(-7.725, -53.63625, 0), App.Vector(-7.725, -56.37625, 0)), False)
sketch10.addGeometry(Part.LineSegment(App.Vector(-7.725, -56.37625, 0), App.Vector(-4.975, -56.37625, 0)), False)
sketch10.addGeometry(Part.LineSegment(App.Vector(-4.975, -56.37625, 0), App.Vector(-4.975, -53.63625, 0)), False)
sketch10.addGeometry(Part.LineSegment(App.Vector(-4.975, -53.63625, 0), App.Vector(-7.725, -53.63625, 0)), False)
sketch10.addConstraint(Sketcher.Constraint("Coincident", 0, 2, 1, 1))
sketch10.addConstraint(Sketcher.Constraint("Coincident", 1, 2, 2, 1))
sketch10.addConstraint(Sketcher.Constraint("Coincident", 2, 2, 3, 1))
sketch10.addConstraint(Sketcher.Constraint("Coincident", 3, 2, 0, 1))
sketch10.addConstraint(Sketcher.Constraint("Coincident", 4, 2, 5, 1))
sketch10.addConstraint(Sketcher.Constraint("Coincident", 5, 2, 6, 1))
sketch10.addConstraint(Sketcher.Constraint("Coincident", 6, 2, 7, 1))
sketch10.addConstraint(Sketcher.Constraint("Coincident", 7, 2, 4, 1))
sketch10.addConstraint(Sketcher.Constraint("Coincident", 8, 2, 9, 1))
sketch10.addConstraint(Sketcher.Constraint("Coincident", 9, 2, 10, 1))
sketch10.addConstraint(Sketcher.Constraint("Coincident", 10, 2, 11, 1))
sketch10.addConstraint(Sketcher.Constraint("Coincident", 11, 2, 8, 1))
sketch10.addConstraint(Sketcher.Constraint("Coincident", 12, 2, 13, 1))
sketch10.addConstraint(Sketcher.Constraint("Coincident", 13, 2, 14, 1))
sketch10.addConstraint(Sketcher.Constraint("Coincident", 14, 2, 15, 1))
sketch10.addConstraint(Sketcher.Constraint("Coincident", 15, 2, 12, 1))
sketch10.addConstraint(Sketcher.Constraint("Coincident", 16, 2, 17, 1))
sketch10.addConstraint(Sketcher.Constraint("Coincident", 17, 2, 18, 1))
sketch10.addConstraint(Sketcher.Constraint("Coincident", 18, 2, 19, 1))
sketch10.addConstraint(Sketcher.Constraint("Coincident", 19, 2, 16, 1))
sketch10.addConstraint(Sketcher.Constraint("Coincident", 20, 2, 21, 1))
sketch10.addConstraint(Sketcher.Constraint("Coincident", 21, 2, 22, 1))
sketch10.addConstraint(Sketcher.Constraint("Coincident", 22, 2, 23, 1))
sketch10.addConstraint(Sketcher.Constraint("Coincident", 23, 2, 20, 1))
sketch10.addConstraint(Sketcher.Constraint("Coincident", 24, 2, 25, 1))
sketch10.addConstraint(Sketcher.Constraint("Coincident", 25, 2, 26, 1))
sketch10.addConstraint(Sketcher.Constraint("Coincident", 26, 2, 27, 1))
sketch10.addConstraint(Sketcher.Constraint("Coincident", 27, 2, 24, 1))
sketch10.addConstraint(Sketcher.Constraint("Coincident", 28, 2, 29, 1))
sketch10.addConstraint(Sketcher.Constraint("Coincident", 29, 2, 30, 1))
sketch10.addConstraint(Sketcher.Constraint("Coincident", 30, 2, 31, 1))
sketch10.addConstraint(Sketcher.Constraint("Coincident", 31, 2, 28, 1))
sketch10.addConstraint(Sketcher.Constraint("Vertical", 0))
sketch10.addConstraint(Sketcher.Constraint("Horizontal", 1))
sketch10.addConstraint(Sketcher.Constraint("Vertical", 2))
sketch10.addConstraint(Sketcher.Constraint("Horizontal", 3))
sketch10.addConstraint(Sketcher.Constraint("Vertical", 4))
sketch10.addConstraint(Sketcher.Constraint("Horizontal", 5))
sketch10.addConstraint(Sketcher.Constraint("Vertical", 6))
sketch10.addConstraint(Sketcher.Constraint("Horizontal", 7))
sketch10.addConstraint(Sketcher.Constraint("Vertical", 8))
sketch10.addConstraint(Sketcher.Constraint("Horizontal", 9))
sketch10.addConstraint(Sketcher.Constraint("Vertical", 10))
sketch10.addConstraint(Sketcher.Constraint("Horizontal", 11))
sketch10.addConstraint(Sketcher.Constraint("Vertical", 12))
sketch10.addConstraint(Sketcher.Constraint("Horizontal", 13))
sketch10.addConstraint(Sketcher.Constraint("Vertical", 14))
sketch10.addConstraint(Sketcher.Constraint("Horizontal", 15))
sketch10.addConstraint(Sketcher.Constraint("Vertical", 16))
sketch10.addConstraint(Sketcher.Constraint("Horizontal", 17))
sketch10.addConstraint(Sketcher.Constraint("Vertical", 18))
sketch10.addConstraint(Sketcher.Constraint("Horizontal", 19))
sketch10.addConstraint(Sketcher.Constraint("Vertical", 20))
sketch10.addConstraint(Sketcher.Constraint("Horizontal", 21))
sketch10.addConstraint(Sketcher.Constraint("Vertical", 22))
sketch10.addConstraint(Sketcher.Constraint("Horizontal", 23))
sketch10.addConstraint(Sketcher.Constraint("Vertical", 24))
sketch10.addConstraint(Sketcher.Constraint("Horizontal", 25))
sketch10.addConstraint(Sketcher.Constraint("Vertical", 26))
sketch10.addConstraint(Sketcher.Constraint("Horizontal", 27))
sketch10.addConstraint(Sketcher.Constraint("Vertical", 28))
sketch10.addConstraint(Sketcher.Constraint("Horizontal", 29))
sketch10.addConstraint(Sketcher.Constraint("Vertical", 30))
sketch10.addConstraint(Sketcher.Constraint("Horizontal", 31))
sketch10.addConstraint(Sketcher.Constraint("Symmetric", 17, 2, 20, 2, -2))
sketch10.addConstraint(Sketcher.Constraint("Symmetric", 19, 2, 22, 2, -2))
sketch10.addConstraint(Sketcher.Constraint("Symmetric", 25, 2, 28, 2, -2))
sketch10.addConstraint(Sketcher.Constraint("Symmetric", 27, 2, 30, 2, -2))
sketch10.addConstraint(Sketcher.Constraint("Horizontal", 1, 2, 4, 2))
sketch10.addConstraint(Sketcher.Constraint("Horizontal", 3, 2, 6, 2))
sketch10.addConstraint(Sketcher.Constraint("Horizontal", 9, 2, 12, 2))
sketch10.addConstraint(Sketcher.Constraint("Horizontal", 11, 2, 14, 2))
sketch10.addConstraint(Sketcher.Constraint("Horizontal", 5, 2, 16, 2))
sketch10.addConstraint(Sketcher.Constraint("Horizontal", 7, 2, 18, 2))
sketch10.addConstraint(Sketcher.Constraint("Horizontal", 13, 2, 24, 2))
sketch10.addConstraint(Sketcher.Constraint("Horizontal", 15, 2, 26, 2))
sketch10.addConstraint(Sketcher.Constraint("Vertical", 3, 2, 12, 2))
sketch10.addConstraint(Sketcher.Constraint("Vertical", 2, 2, 13, 2))
sketch10.addConstraint(Sketcher.Constraint("Vertical", 23, 2, 24, 2))
sketch10.addConstraint(Sketcher.Constraint("Vertical", 22, 2, 25, 2))
sketch10.addConstraint(Sketcher.Constraint("Equal", 15, 17))
sketch10.addConstraint(Sketcher.Constraint("Equal", 31, 0))
sketch10.addConstraint(Sketcher.Constraint("Equal", 11, 8))
sketch10.addConstraint(Sketcher.Constraint("DistanceX", 16, 2, 0, 2, Q("65 mm")))
sketch10.addConstraint(Sketcher.Constraint("DistanceX", 1, 1, 1, 2, Q("2.75 mm")))
sketch10.addConstraint(Sketcher.Constraint("DistanceX", 9, 1, 9, 2, Q("2.74 mm")))
sketch10.addConstraint(Sketcher.Constraint("DistanceX", 16, 2, 20, 2, Q("12.7 mm")))
sketch10.addConstraint(Sketcher.Constraint("DistanceX", -1, 1, 8, 2, Q("69.98 mm")))
sketch10.addConstraint(Sketcher.Constraint("DistanceX", 5, 1, 5, 2, Q("2.782071 mm")))
sketch10.addConstraint(Sketcher.Constraint("DistanceY", 8, 2, 4, 2, Q("4.7575 mm")))
sketch10.addConstraint(Sketcher.Constraint("DistanceY", 0, 2, -1, 1, Q("51.61875 mm")))
sketch10.addConstraint(Sketcher.Constraint("DistanceX", -1, 1, 4, 2, Q("69.958964 mm")))
pocket5 = body.newObject("PartDesign::Pocket", "Pocket004")
pocket5.Profile = sketch10
pocket5.Length = 20

sketch11 = body.newObject("Sketcher::SketchObject", "Sketch010")
sketch11.AttachmentSupport = (doc.getObject("XY_Plane"), [""])
sketch11.MapMode = "FlatFace"
sketch11.AttachmentOffset = App.Placement(App.Vector(0, 0, 5), App.Rotation())
sketch11.addGeometry(Part.LineSegment(App.Vector(-4.55, -74.26881, 0), App.Vector(-4.55, -77.01881, 0)), False)
sketch11.addGeometry(Part.LineSegment(App.Vector(-4.55, -77.01881, 0), App.Vector(-1.8, -77.01881, 0)), False)
sketch11.addGeometry(Part.LineSegment(App.Vector(-1.8, -77.01881, 0), App.Vector(-1.8, -74.26881, 0)), False)
sketch11.addGeometry(Part.LineSegment(App.Vector(-1.8, -74.26881, 0), App.Vector(-4.55, -74.26881, 0)), False)
sketch11.addGeometry(Part.LineSegment(App.Vector(1.8, -74.26881, 0), App.Vector(1.8, -77.01881, 0)), False)
sketch11.addGeometry(Part.LineSegment(App.Vector(1.8, -77.01881, 0), App.Vector(4.55, -77.01881, 0)), False)
sketch11.addGeometry(Part.LineSegment(App.Vector(4.55, -77.01881, 0), App.Vector(4.55, -74.26881, 0)), False)
sketch11.addGeometry(Part.LineSegment(App.Vector(4.55, -74.26881, 0), App.Vector(1.8, -74.26881, 0)), False)
sketch11.addGeometry(Part.LineSegment(App.Vector(1.8, -79.03131, 0), App.Vector(1.8, -81.78131, 0)), False)
sketch11.addGeometry(Part.LineSegment(App.Vector(1.8, -81.78131, 0), App.Vector(4.55, -81.78131, 0)), False)
sketch11.addGeometry(Part.LineSegment(App.Vector(4.55, -81.78131, 0), App.Vector(4.55, -79.03131, 0)), False)
sketch11.addGeometry(Part.LineSegment(App.Vector(4.55, -79.03131, 0), App.Vector(1.8, -79.03131, 0)), False)
sketch11.addGeometry(Part.LineSegment(App.Vector(-4.55, -79.03131, 0), App.Vector(-4.55, -81.78131, 0)), False)
sketch11.addGeometry(Part.LineSegment(App.Vector(-4.55, -81.78131, 0), App.Vector(-1.8, -81.78131, 0)), False)
sketch11.addGeometry(Part.LineSegment(App.Vector(-1.8, -81.78131, 0), App.Vector(-1.8, -79.03131, 0)), False)
sketch11.addGeometry(Part.LineSegment(App.Vector(-1.8, -79.03131, 0), App.Vector(-4.55, -79.03131, 0)), False)
sketch11.addConstraint(Sketcher.Constraint("Coincident", 0, 2, 1, 1))
sketch11.addConstraint(Sketcher.Constraint("Coincident", 1, 2, 2, 1))
sketch11.addConstraint(Sketcher.Constraint("Coincident", 2, 2, 3, 1))
sketch11.addConstraint(Sketcher.Constraint("Coincident", 3, 2, 0, 1))
sketch11.addConstraint(Sketcher.Constraint("Coincident", 4, 2, 5, 1))
sketch11.addConstraint(Sketcher.Constraint("Coincident", 5, 2, 6, 1))
sketch11.addConstraint(Sketcher.Constraint("Coincident", 6, 2, 7, 1))
sketch11.addConstraint(Sketcher.Constraint("Coincident", 7, 2, 4, 1))
sketch11.addConstraint(Sketcher.Constraint("Coincident", 8, 2, 9, 1))
sketch11.addConstraint(Sketcher.Constraint("Coincident", 9, 2, 10, 1))
sketch11.addConstraint(Sketcher.Constraint("Coincident", 10, 2, 11, 1))
sketch11.addConstraint(Sketcher.Constraint("Coincident", 11, 2, 8, 1))
sketch11.addConstraint(Sketcher.Constraint("Coincident", 12, 2, 13, 1))
sketch11.addConstraint(Sketcher.Constraint("Coincident", 13, 2, 14, 1))
sketch11.addConstraint(Sketcher.Constraint("Coincident", 14, 2, 15, 1))
sketch11.addConstraint(Sketcher.Constraint("Coincident", 15, 2, 12, 1))
sketch11.addConstraint(Sketcher.Constraint("Vertical", 0))
sketch11.addConstraint(Sketcher.Constraint("Horizontal", 1))
sketch11.addConstraint(Sketcher.Constraint("Vertical", 2))
sketch11.addConstraint(Sketcher.Constraint("Horizontal", 3))
sketch11.addConstraint(Sketcher.Constraint("Vertical", 4))
sketch11.addConstraint(Sketcher.Constraint("Horizontal", 5))
sketch11.addConstraint(Sketcher.Constraint("Vertical", 6))
sketch11.addConstraint(Sketcher.Constraint("Horizontal", 7))
sketch11.addConstraint(Sketcher.Constraint("Vertical", 8))
sketch11.addConstraint(Sketcher.Constraint("Horizontal", 9))
sketch11.addConstraint(Sketcher.Constraint("Vertical", 10))
sketch11.addConstraint(Sketcher.Constraint("Horizontal", 11))
sketch11.addConstraint(Sketcher.Constraint("Vertical", 12))
sketch11.addConstraint(Sketcher.Constraint("Horizontal", 13))
sketch11.addConstraint(Sketcher.Constraint("Vertical", 14))
sketch11.addConstraint(Sketcher.Constraint("Horizontal", 15))
sketch11.addConstraint(Sketcher.Constraint("Symmetric", 1, 2, 4, 2, -2))
sketch11.addConstraint(Sketcher.Constraint("Symmetric", 3, 2, 6, 2, -2))
sketch11.addConstraint(Sketcher.Constraint("Symmetric", 9, 2, 12, 2, -2))
sketch11.addConstraint(Sketcher.Constraint("Symmetric", 11, 2, 14, 2, -2))
sketch11.addConstraint(Sketcher.Constraint("Vertical", 7, 2, 8, 2))
sketch11.addConstraint(Sketcher.Constraint("Vertical", 6, 2, 9, 2))
sketch11.addConstraint(Sketcher.Constraint("Equal", 15, 0))
sketch11.addConstraint(Sketcher.Constraint("Equal", 6, 8))
sketch11.addConstraint(Sketcher.Constraint("DistanceX", 1, 1, 1, 2, Q("2.75 mm")))
sketch11.addConstraint(Sketcher.Constraint("DistanceX", 1, 2, -1, 1, Q("1.8 mm")))
sketch11.addConstraint(Sketcher.Constraint("DistanceY", 8, 2, 4, 2, Q("4.7625 mm")))
sketch11.addConstraint(Sketcher.Constraint("DistanceY", 0, 2, -1, 1, Q("77.01881 mm")))
pocket6 = body.newObject("PartDesign::Pocket", "Pocket005")
pocket6.Profile = sketch11
pocket6.Length = 20

sketch12 = body.newObject("Sketcher::SketchObject", "Sketch011")
sketch12.AttachmentSupport = (doc.getObject("XY_Plane"), [""])
sketch12.MapMode = "FlatFace"
sketch12.AttachmentOffset = App.Placement(App.Vector(0, 0, 5), App.Rotation())
sketch12.addGeometry(Part.LineSegment(App.Vector(-3.915, -39.862097, 0), App.Vector(-3.915, -42.612097, 0)), False)
sketch12.addGeometry(Part.LineSegment(App.Vector(-3.915, -42.612097, 0), App.Vector(-1.165, -42.612097, 0)), False)
sketch12.addGeometry(Part.LineSegment(App.Vector(-1.165, -42.612097, 0), App.Vector(-1.165, -39.862097, 0)), False)
sketch12.addGeometry(Part.LineSegment(App.Vector(-1.165, -39.862097, 0), App.Vector(-3.915, -39.862097, 0)), False)
sketch12.addGeometry(Part.LineSegment(App.Vector(1.165, -39.862097, 0), App.Vector(1.165, -42.612097, 0)), False)
sketch12.addGeometry(Part.LineSegment(App.Vector(1.165, -42.612097, 0), App.Vector(3.915, -42.612097, 0)), False)
sketch12.addGeometry(Part.LineSegment(App.Vector(3.915, -42.612097, 0), App.Vector(3.915, -39.862097, 0)), False)
sketch12.addGeometry(Part.LineSegment(App.Vector(3.915, -39.862097, 0), App.Vector(1.165, -39.862097, 0)), False)
sketch12.addGeometry(Part.LineSegment(App.Vector(61.110236, -39.862097, 0), App.Vector(61.110236, -42.612097, 0)), False)
sketch12.addGeometry(Part.LineSegment(App.Vector(61.110236, -42.612097, 0), App.Vector(63.809764, -42.612097, 0)), False)
sketch12.addGeometry(Part.LineSegment(App.Vector(63.809764, -42.612097, 0), App.Vector(63.809764, -39.862097, 0)), False)
sketch12.addGeometry(Part.LineSegment(App.Vector(63.809764, -39.862097, 0), App.Vector(61.110236, -39.862097, 0)), False)
sketch12.addGeometry(Part.LineSegment(App.Vector(66.165, -39.862097, 0), App.Vector(66.165, -42.612097, 0)), False)
sketch12.addGeometry(Part.LineSegment(App.Vector(66.165, -42.612097, 0), App.Vector(68.915, -42.612097, 0)), False)
sketch12.addGeometry(Part.LineSegment(App.Vector(68.915, -42.612097, 0), App.Vector(68.915, -39.862097, 0)), False)
sketch12.addGeometry(Part.LineSegment(App.Vector(68.915, -39.862097, 0), App.Vector(66.165, -39.862097, 0)), False)
sketch12.addConstraint(Sketcher.Constraint("Coincident", 0, 2, 1, 1))
sketch12.addConstraint(Sketcher.Constraint("Coincident", 1, 2, 2, 1))
sketch12.addConstraint(Sketcher.Constraint("Coincident", 2, 2, 3, 1))
sketch12.addConstraint(Sketcher.Constraint("Coincident", 3, 2, 0, 1))
sketch12.addConstraint(Sketcher.Constraint("Coincident", 4, 2, 5, 1))
sketch12.addConstraint(Sketcher.Constraint("Coincident", 5, 2, 6, 1))
sketch12.addConstraint(Sketcher.Constraint("Coincident", 6, 2, 7, 1))
sketch12.addConstraint(Sketcher.Constraint("Coincident", 7, 2, 4, 1))
sketch12.addConstraint(Sketcher.Constraint("Coincident", 8, 2, 9, 1))
sketch12.addConstraint(Sketcher.Constraint("Coincident", 9, 2, 10, 1))
sketch12.addConstraint(Sketcher.Constraint("Coincident", 10, 2, 11, 1))
sketch12.addConstraint(Sketcher.Constraint("Coincident", 11, 2, 8, 1))
sketch12.addConstraint(Sketcher.Constraint("Coincident", 12, 2, 13, 1))
sketch12.addConstraint(Sketcher.Constraint("Coincident", 13, 2, 14, 1))
sketch12.addConstraint(Sketcher.Constraint("Coincident", 14, 2, 15, 1))
sketch12.addConstraint(Sketcher.Constraint("Coincident", 15, 2, 12, 1))
sketch12.addConstraint(Sketcher.Constraint("Vertical", 0))
sketch12.addConstraint(Sketcher.Constraint("Horizontal", 1))
sketch12.addConstraint(Sketcher.Constraint("Vertical", 2))
sketch12.addConstraint(Sketcher.Constraint("Horizontal", 3))
sketch12.addConstraint(Sketcher.Constraint("Vertical", 4))
sketch12.addConstraint(Sketcher.Constraint("Horizontal", 5))
sketch12.addConstraint(Sketcher.Constraint("Vertical", 6))
sketch12.addConstraint(Sketcher.Constraint("Horizontal", 7))
sketch12.addConstraint(Sketcher.Constraint("Vertical", 8))
sketch12.addConstraint(Sketcher.Constraint("Horizontal", 9))
sketch12.addConstraint(Sketcher.Constraint("Vertical", 10))
sketch12.addConstraint(Sketcher.Constraint("Horizontal", 11))
sketch12.addConstraint(Sketcher.Constraint("Vertical", 12))
sketch12.addConstraint(Sketcher.Constraint("Horizontal", 13))
sketch12.addConstraint(Sketcher.Constraint("Vertical", 14))
sketch12.addConstraint(Sketcher.Constraint("Horizontal", 15))
sketch12.addConstraint(Sketcher.Constraint("Symmetric", 1, 2, 4, 2, -2))
sketch12.addConstraint(Sketcher.Constraint("Symmetric", 3, 2, 6, 2, -2))
sketch12.addConstraint(Sketcher.Constraint("Horizontal", 5, 2, 8, 2))
sketch12.addConstraint(Sketcher.Constraint("Horizontal", 7, 2, 10, 2))
sketch12.addConstraint(Sketcher.Constraint("Horizontal", 9, 2, 12, 2))
sketch12.addConstraint(Sketcher.Constraint("Horizontal", 11, 2, 14, 2))
sketch12.addConstraint(Sketcher.Constraint("Equal", 7, 13))
sketch12.addConstraint(Sketcher.Constraint("Equal", 15, 0))
sketch12.addConstraint(Sketcher.Constraint("DistanceX", 1, 1, 1, 2, Q("2.75 mm")))
sketch12.addConstraint(Sketcher.Constraint("DistanceX", 1, 2, 4, 2, Q("2.33 mm")))
sketch12.addConstraint(Sketcher.Constraint("DistanceX", 5, 2, 12, 2, Q("62.25 mm")))
sketch12.addConstraint(Sketcher.Constraint("DistanceX", 9, 1, 9, 2, Q("2.699527 mm")))
sketch12.addConstraint(Sketcher.Constraint("DistanceY", 0, 2, -1, 1, Q("42.612097 mm")))
sketch12.addConstraint(Sketcher.Constraint("DistanceX", -1, 1, 8, 2, Q("61.110236 mm")))
pocket7 = body.newObject("PartDesign::Pocket", "Pocket006")
pocket7.Profile = sketch12
pocket7.Length = 20

doc.recompute()
